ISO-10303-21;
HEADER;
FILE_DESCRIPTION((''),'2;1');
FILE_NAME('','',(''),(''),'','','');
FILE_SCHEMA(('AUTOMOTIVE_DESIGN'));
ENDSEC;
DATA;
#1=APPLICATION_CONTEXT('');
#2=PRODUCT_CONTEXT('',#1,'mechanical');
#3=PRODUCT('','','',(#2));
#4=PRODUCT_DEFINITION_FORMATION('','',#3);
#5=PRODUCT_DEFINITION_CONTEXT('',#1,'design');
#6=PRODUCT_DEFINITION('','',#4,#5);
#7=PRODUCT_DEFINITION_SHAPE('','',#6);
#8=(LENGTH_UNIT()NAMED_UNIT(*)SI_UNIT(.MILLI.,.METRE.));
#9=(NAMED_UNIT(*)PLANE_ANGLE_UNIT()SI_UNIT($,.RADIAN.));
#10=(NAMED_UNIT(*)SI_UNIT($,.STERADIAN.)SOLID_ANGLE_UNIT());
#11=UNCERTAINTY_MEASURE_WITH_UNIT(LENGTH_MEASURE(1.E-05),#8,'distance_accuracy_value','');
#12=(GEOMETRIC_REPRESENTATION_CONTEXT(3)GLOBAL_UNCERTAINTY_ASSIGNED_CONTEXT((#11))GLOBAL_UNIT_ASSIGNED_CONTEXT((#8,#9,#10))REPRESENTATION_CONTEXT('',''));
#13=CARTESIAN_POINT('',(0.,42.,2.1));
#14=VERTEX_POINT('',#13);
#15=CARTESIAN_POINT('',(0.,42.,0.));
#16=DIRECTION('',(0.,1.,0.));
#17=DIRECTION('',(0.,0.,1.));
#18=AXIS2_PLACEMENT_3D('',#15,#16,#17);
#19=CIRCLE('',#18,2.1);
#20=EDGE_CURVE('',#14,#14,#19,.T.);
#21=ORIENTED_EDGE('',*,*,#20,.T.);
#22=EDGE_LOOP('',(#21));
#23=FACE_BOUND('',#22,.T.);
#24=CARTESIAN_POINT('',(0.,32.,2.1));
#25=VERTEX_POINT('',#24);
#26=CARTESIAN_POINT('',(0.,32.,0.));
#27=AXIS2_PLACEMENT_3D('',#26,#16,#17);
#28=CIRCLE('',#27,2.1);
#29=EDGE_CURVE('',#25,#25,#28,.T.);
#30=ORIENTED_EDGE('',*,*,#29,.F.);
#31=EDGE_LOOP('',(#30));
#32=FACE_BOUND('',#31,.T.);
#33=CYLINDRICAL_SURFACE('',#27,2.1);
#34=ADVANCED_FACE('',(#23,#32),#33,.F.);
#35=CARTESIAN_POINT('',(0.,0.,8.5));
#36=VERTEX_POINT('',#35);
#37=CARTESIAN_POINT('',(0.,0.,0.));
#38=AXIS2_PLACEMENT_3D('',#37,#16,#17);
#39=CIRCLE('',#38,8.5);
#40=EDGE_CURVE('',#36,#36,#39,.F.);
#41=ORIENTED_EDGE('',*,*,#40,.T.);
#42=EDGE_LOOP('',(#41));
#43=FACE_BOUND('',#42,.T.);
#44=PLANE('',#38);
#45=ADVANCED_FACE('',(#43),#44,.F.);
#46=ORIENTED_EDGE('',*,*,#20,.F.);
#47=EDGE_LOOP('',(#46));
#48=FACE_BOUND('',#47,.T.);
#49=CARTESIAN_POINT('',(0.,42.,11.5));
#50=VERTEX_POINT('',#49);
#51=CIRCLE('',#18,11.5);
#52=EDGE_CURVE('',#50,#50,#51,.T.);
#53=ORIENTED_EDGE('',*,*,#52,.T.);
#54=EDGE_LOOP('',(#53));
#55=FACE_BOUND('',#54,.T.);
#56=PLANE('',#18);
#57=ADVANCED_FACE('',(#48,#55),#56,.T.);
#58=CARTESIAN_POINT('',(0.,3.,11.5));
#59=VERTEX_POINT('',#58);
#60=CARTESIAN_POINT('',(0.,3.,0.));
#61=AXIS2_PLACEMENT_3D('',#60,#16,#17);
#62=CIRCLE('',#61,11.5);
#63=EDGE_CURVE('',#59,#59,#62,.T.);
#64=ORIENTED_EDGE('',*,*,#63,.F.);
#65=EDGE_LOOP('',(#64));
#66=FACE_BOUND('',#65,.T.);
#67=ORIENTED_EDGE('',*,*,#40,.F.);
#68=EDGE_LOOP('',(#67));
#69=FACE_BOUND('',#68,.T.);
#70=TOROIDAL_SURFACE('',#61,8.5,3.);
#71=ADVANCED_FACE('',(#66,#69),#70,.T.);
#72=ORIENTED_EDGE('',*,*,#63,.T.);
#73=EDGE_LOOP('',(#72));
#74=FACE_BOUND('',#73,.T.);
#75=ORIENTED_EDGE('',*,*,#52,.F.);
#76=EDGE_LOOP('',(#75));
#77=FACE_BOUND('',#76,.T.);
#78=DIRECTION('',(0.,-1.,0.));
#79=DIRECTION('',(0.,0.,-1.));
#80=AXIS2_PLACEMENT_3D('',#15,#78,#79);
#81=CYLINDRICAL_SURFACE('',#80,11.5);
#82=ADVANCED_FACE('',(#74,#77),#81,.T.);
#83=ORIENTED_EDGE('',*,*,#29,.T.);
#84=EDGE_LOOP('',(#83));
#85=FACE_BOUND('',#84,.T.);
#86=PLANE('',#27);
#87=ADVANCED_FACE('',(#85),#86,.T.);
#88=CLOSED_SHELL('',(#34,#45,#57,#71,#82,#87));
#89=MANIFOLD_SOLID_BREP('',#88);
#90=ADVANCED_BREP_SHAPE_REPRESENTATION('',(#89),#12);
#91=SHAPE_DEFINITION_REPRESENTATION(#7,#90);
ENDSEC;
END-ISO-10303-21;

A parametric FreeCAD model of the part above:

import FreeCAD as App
import Part
import Sketcher

V = App.Vector


def edges_at(feature, points):
    """Names of the edges that pass closest to the given points."""
    edges = feature.Shape.Edges
    near = lambda p: min(range(len(edges)), key=lambda i: edges[i].distToShape(Part.Vertex(*p))[0])
    return sorted({f"Edge{near(p) + 1}" for p in points})

doc = App.newDocument("Part")
body = doc.addObject("PartDesign::Body", "Body")

# Sketch on XZ plane
sketch1 = doc.addObject("Sketcher::SketchObject", "Sketch")
body.addObject(sketch1)
sketch1.AttachmentSupport = (doc.XZ_Plane, [""])
sketch1.MapMode = "FlatFace"
sketch1.addGeometry(Part.Circle(V(0, 0, 0), V(0, 0, 1), 12), False)
sketch1.addConstraint([
    Sketcher.Constraint("Coincident", 0, 3, -1, 1),
    Sketcher.Constraint("Diameter", 0, 23.0),
])
pad1 = doc.addObject("PartDesign::Pad", "Pad")
body.addObject(pad1)
pad1.Profile = sketch1
pad1.Length = 42
pad1.Reversed = True
doc.recompute()

fillet = doc.addObject("PartDesign::Fillet", "Fillet")
body.addObject(fillet)
fillet.Base = (pad1, edges_at(pad1, [(-11.5, 0, 0)]))
fillet.Radius = 3

# Sketch on XZ plane
sketch2 = doc.addObject("Sketcher::SketchObject", "Sketch001")
body.addObject(sketch2)
sketch2.AttachmentSupport = (doc.XZ_Plane, [""])
sketch2.MapMode = "FlatFace"
sketch2.AttachmentOffset = App.Placement(V(0, 0, -42), App.Rotation())
sketch2.addGeometry(Part.Circle(V(0, 0, 0), V(0, 0, 1), 2.1), False)
sketch2.addConstraint([
    Sketcher.Constraint("Coincident", 0, 3, -1, 1),
    Sketcher.Constraint("Diameter", 0, 4.2),
])
pocket1 = doc.addObject("PartDesign::Pocket", "Pocket")
body.addObject(pocket1)
pocket1.Profile = sketch2
pocket1.Length = 10
pocket1.Reversed = True

doc.recompute()
